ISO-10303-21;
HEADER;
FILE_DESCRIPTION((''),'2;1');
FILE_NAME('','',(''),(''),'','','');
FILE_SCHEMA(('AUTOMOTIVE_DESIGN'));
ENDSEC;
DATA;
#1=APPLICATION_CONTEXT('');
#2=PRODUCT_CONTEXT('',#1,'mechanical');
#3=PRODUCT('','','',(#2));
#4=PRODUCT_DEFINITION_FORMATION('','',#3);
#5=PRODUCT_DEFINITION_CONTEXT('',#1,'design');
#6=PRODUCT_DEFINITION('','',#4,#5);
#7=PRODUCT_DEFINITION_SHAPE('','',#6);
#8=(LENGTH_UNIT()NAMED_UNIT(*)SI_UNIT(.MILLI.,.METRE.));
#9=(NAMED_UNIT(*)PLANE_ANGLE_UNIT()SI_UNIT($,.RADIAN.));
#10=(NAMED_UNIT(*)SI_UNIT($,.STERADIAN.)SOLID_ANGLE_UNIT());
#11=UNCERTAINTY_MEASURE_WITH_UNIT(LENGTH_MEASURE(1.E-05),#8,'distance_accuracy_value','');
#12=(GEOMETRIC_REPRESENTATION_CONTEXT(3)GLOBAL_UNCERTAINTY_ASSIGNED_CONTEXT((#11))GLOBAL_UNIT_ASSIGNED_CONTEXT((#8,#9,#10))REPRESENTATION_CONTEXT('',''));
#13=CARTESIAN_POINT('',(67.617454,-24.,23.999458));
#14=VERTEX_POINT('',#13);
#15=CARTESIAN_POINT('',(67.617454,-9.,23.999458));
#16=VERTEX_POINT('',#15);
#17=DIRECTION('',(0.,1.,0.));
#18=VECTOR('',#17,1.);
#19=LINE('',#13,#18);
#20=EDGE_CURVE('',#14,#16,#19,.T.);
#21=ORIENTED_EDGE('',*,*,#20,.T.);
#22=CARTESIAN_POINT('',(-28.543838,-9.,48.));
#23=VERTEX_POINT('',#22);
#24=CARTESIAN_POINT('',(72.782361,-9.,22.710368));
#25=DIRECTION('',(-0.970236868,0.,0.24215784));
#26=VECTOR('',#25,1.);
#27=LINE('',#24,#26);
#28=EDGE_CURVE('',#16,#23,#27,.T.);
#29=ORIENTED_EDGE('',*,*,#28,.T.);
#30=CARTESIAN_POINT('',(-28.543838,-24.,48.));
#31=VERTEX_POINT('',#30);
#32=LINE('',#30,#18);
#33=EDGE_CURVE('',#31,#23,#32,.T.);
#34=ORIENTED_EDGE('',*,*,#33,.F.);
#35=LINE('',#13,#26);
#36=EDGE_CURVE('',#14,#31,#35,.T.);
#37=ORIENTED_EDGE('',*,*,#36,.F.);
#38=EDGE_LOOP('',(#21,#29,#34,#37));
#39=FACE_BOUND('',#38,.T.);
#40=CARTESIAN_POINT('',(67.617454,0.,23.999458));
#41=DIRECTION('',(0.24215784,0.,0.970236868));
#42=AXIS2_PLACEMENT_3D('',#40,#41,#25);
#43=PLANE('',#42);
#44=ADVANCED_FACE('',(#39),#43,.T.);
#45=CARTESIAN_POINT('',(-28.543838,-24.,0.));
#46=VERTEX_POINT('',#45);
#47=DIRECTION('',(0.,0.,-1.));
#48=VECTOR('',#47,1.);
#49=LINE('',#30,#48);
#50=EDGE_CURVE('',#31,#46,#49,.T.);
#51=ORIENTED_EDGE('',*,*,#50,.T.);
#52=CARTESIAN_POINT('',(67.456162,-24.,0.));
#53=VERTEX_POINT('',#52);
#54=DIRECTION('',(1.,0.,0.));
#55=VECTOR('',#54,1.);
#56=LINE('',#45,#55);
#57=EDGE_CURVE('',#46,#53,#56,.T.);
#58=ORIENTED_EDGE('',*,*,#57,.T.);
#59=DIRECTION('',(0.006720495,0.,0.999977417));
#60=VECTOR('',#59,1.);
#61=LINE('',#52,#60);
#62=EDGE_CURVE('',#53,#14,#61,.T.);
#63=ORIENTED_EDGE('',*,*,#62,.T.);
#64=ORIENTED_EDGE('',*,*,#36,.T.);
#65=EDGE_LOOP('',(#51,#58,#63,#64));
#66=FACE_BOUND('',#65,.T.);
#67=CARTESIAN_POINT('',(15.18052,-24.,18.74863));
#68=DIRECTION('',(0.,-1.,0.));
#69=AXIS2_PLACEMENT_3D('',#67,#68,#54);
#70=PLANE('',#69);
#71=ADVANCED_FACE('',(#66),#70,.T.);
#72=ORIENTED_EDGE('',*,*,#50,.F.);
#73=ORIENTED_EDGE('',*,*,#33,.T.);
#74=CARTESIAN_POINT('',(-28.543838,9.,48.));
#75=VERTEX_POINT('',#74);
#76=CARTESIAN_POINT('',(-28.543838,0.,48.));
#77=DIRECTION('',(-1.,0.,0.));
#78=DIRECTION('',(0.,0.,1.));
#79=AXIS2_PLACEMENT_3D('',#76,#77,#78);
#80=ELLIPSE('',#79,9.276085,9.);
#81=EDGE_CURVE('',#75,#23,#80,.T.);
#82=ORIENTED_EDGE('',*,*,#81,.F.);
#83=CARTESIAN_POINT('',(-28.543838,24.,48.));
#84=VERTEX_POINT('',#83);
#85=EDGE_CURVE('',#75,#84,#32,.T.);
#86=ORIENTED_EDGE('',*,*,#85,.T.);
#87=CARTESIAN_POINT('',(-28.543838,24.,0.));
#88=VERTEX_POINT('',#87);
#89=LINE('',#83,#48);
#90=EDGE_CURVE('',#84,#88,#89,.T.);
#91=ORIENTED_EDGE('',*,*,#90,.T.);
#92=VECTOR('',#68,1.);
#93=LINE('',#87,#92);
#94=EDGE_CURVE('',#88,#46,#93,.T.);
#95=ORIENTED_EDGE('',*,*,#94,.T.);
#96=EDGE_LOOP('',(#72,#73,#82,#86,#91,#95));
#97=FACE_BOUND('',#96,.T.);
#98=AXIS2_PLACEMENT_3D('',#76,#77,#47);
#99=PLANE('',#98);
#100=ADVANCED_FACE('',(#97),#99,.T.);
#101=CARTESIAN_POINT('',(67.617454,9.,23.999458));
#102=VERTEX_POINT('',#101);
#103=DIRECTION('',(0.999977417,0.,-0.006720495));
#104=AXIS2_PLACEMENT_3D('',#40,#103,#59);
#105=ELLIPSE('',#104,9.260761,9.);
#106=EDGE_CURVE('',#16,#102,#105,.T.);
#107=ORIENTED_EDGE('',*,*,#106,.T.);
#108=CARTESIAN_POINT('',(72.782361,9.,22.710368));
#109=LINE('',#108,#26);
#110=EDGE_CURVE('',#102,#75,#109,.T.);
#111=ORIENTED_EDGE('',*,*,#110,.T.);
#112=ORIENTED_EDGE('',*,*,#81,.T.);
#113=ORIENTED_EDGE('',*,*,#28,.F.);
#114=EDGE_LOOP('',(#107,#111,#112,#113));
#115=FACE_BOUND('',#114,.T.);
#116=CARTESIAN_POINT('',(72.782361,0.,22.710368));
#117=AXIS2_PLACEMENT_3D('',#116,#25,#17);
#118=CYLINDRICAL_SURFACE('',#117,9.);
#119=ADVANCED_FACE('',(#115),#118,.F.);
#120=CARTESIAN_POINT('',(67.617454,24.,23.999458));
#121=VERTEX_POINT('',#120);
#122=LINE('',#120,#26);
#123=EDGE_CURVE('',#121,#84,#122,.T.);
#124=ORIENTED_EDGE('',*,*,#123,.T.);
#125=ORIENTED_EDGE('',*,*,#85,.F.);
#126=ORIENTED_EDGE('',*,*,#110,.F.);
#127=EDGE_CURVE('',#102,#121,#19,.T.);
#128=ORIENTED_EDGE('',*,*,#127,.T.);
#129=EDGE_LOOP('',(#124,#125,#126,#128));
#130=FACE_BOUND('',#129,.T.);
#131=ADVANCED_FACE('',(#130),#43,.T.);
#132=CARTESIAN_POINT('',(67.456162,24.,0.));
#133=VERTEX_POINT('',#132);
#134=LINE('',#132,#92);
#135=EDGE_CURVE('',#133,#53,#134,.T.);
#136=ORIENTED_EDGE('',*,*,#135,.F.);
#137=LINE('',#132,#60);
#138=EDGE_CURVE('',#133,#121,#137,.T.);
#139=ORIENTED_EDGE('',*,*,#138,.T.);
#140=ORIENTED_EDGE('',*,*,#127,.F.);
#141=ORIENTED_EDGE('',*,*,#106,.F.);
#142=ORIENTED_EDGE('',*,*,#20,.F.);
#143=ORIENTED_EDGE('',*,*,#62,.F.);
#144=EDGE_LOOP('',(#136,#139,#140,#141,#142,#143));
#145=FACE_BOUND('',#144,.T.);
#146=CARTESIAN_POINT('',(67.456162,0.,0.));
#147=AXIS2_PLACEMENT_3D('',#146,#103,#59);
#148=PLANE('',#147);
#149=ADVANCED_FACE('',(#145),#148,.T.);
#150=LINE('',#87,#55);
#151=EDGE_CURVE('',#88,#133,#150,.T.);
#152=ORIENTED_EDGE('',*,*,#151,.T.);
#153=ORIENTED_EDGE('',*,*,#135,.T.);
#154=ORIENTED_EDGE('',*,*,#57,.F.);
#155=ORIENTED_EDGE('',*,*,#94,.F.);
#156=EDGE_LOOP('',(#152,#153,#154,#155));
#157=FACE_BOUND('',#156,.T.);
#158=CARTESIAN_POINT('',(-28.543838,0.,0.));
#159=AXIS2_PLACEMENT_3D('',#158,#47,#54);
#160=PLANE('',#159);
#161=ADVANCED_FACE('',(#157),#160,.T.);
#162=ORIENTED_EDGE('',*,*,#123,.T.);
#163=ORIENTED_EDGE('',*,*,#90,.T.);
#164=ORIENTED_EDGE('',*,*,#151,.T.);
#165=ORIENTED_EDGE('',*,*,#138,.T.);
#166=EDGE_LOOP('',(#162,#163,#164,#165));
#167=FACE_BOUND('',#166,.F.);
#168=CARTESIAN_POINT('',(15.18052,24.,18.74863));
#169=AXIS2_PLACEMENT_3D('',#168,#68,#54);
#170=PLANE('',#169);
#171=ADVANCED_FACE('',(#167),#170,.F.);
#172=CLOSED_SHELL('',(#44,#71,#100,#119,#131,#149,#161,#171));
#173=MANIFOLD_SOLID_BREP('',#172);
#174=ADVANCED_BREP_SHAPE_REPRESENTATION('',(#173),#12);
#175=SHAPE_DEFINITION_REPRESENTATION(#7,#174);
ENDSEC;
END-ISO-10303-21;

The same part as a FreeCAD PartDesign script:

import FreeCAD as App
import Part
import Sketcher

doc = App.newDocument("Part")
body = doc.addObject("PartDesign::Body", "Body")

# Sketch on XZ plane
sketch1 = doc.addObject("Sketcher::SketchObject", "Sketch")
body.addObject(sketch1)
sketch1.AttachmentSupport = (doc.XZ_Plane, [""])
sketch1.MapMode = "FlatFace"
sketch1.addGeometry([
    Part.LineSegment(App.Vector(-29, 48, 0), App.Vector(-29, 0, 0)),
    Part.LineSegment(App.Vector(-29, 0, 0), App.Vector(67, 0, 0)),
    Part.LineSegment(App.Vector(67, 0, 0), App.Vector(68, 24, 0)),
    Part.LineSegment(App.Vector(68, 24, 0), App.Vector(-29, 48, 0)),
], False)
sketch1.addConstraint([
    Sketcher.Constraint("Coincident", 0, 2, 1, 1),
    Sketcher.Constraint("Coincident", 1, 2, 2, 1),
    Sketcher.Constraint("Coincident", 2, 2, 3, 1),
    Sketcher.Constraint("Coincident", 3, 2, 0, 1),
    Sketcher.Constraint("Vertical", 0),
    Sketcher.Constraint("Horizontal", 1),
    Sketcher.Constraint("PointOnObject", 0, 2, -1),
    Sketcher.Constraint("DistanceX", 1, 1, 1, 2, 96.0),
    Sketcher.Constraint("DistanceY", 0, 2, 0, 1, 48.0),
    Sketcher.Constraint("Distance", 2, 24.0),
    Sketcher.Constraint("Distance", 3, 99.11115),
    Sketcher.Constraint("DistanceX", 0, 2, -1, 1, 28.543838),
])
pad1 = doc.addObject("PartDesign::Pad", "Pad")
body.addObject(pad1)
pad1.Profile = sketch1
pad1.Length = 48
pad1.Midplane = True

# Sketch on an angled plane
sketch2 = doc.addObject("Sketcher::SketchObject", "Sketch001")
body.addObject(sketch2)
sketch2.Placement = App.Placement(App.Vector(9.6038, 0, 38.478872), App.Rotation(App.Vector(0.970236868, 0, -0.24215784), App.Vector(0, 0.999999999, 0), App.Vector(0.24215784, 0, 0.970236868), "ZXY"))
sketch2.addGeometry([
    Part.LineSegment(App.Vector(-39, 9, 0), App.Vector(-39, 0, 0)),
    Part.LineSegment(App.Vector(-39, 0, 0), App.Vector(65, 0, 0)),
    Part.LineSegment(App.Vector(65, 0, 0), App.Vector(65, 9, 0)),
    Part.LineSegment(App.Vector(65, 9, 0), App.Vector(-39, 9, 0)),
], False)
sketch2.addConstraint([
    Sketcher.Constraint("Coincident", 0, 2, 1, 1),
    Sketcher.Constraint("Coincident", 1, 2, 2, 1),
    Sketcher.Constraint("Coincident", 2, 2, 3, 1),
    Sketcher.Constraint("Coincident", 3, 2, 0, 1),
    Sketcher.Constraint("Vertical", 0),
    Sketcher.Constraint("Horizontal", 1),
    Sketcher.Constraint("Vertical", 2),
    Sketcher.Constraint("Horizontal", 3),
    Sketcher.Constraint("PointOnObject", 0, 2, -1),
    Sketcher.Constraint("DistanceY", 0, 2, 0, 1, 9.0),
    Sketcher.Constraint("DistanceX", 1, 1, 1, 2, 104.434497),
    Sketcher.Constraint("DistanceX", 0, 2, -1, 1, 39.31786),
])
groove = doc.addObject("PartDesign::Groove", "Groove")
body.addObject(groove)
groove.Profile = sketch2
groove.ReferenceAxis = (sketch2, ["H_Axis"])
groove.Angle = 360

doc.recompute()
